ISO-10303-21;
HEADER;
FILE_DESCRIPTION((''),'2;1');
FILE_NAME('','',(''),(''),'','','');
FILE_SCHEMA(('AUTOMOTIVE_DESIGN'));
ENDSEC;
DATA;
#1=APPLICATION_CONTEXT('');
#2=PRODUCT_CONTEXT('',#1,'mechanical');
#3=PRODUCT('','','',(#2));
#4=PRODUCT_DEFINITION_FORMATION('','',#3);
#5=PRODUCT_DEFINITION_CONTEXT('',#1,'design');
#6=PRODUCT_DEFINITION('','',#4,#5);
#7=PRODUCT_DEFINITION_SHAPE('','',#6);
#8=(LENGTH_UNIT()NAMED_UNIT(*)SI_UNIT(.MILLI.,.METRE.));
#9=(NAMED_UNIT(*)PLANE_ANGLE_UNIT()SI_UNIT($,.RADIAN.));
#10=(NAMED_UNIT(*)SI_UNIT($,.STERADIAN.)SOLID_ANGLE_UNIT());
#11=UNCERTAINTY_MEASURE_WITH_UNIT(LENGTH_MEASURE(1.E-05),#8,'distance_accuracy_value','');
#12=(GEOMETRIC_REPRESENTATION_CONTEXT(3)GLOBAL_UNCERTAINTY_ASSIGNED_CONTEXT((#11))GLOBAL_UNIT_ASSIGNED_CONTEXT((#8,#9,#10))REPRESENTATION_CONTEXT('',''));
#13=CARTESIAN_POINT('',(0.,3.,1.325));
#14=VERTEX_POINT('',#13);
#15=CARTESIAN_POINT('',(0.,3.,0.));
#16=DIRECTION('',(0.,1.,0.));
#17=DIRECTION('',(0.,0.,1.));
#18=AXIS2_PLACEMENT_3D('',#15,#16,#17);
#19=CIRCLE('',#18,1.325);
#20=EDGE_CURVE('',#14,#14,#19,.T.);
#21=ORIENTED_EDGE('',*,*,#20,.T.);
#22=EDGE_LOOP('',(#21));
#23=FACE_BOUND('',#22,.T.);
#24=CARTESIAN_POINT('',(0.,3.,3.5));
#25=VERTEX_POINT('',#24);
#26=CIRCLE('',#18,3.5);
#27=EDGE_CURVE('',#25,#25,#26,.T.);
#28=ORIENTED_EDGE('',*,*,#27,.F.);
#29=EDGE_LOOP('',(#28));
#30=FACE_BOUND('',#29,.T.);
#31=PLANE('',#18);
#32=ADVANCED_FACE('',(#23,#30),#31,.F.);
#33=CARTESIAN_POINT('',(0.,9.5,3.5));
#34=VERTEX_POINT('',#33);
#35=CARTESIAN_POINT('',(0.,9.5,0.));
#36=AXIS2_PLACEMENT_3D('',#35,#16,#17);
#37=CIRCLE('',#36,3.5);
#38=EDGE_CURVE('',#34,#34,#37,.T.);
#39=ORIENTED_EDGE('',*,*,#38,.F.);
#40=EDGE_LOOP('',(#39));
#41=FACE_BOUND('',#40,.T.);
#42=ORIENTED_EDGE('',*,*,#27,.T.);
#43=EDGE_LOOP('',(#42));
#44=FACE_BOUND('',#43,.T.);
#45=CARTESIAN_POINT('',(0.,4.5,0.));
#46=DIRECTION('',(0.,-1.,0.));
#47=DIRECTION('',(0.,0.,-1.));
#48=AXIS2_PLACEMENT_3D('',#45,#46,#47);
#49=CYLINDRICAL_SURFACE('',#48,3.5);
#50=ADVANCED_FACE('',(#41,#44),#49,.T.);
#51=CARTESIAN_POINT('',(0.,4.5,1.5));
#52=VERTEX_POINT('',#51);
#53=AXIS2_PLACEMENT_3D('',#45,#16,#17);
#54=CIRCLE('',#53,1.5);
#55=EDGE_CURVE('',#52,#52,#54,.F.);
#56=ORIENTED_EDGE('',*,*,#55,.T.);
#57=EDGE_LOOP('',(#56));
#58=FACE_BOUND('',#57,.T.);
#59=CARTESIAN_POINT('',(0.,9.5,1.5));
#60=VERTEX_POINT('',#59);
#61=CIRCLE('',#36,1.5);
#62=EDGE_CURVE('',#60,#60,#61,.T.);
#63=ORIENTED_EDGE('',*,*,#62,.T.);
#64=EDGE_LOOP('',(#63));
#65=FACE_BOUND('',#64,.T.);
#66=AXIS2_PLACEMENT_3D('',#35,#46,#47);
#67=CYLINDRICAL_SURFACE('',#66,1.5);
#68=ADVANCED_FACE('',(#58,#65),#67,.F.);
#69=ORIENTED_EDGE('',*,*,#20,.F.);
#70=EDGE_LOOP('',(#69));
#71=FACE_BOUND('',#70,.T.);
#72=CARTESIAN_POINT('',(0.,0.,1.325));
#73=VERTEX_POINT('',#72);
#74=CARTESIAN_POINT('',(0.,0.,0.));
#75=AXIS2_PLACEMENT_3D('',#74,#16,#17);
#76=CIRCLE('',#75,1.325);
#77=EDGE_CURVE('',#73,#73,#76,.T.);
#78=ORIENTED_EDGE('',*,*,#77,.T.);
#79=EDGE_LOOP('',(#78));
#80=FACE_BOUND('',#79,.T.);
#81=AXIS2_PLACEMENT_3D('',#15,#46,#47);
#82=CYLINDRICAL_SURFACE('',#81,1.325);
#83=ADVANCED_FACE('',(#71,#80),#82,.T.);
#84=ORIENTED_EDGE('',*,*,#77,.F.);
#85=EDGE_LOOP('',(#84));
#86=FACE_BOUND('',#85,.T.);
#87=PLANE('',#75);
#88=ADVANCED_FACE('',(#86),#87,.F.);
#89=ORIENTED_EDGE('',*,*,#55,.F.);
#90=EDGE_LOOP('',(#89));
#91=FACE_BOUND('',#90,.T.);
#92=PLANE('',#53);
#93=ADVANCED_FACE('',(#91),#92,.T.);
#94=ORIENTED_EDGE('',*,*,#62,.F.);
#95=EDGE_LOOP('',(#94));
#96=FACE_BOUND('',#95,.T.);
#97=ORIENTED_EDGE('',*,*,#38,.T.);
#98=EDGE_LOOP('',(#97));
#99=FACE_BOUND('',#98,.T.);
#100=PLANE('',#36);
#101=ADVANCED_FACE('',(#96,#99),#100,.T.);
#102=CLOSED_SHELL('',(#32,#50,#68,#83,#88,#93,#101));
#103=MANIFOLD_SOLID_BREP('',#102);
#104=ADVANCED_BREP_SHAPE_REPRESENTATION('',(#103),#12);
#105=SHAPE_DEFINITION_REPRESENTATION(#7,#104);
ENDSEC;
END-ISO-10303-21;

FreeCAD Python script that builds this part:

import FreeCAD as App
import Part
import Sketcher
Q = App.Units.Quantity

doc = App.newDocument("Part")
body = doc.addObject("PartDesign::Body", "Body")

# Sketch on XZ plane
sketch1 = body.newObject("Sketcher::SketchObject", "Sketch")
sketch1.AttachmentSupport = (doc.getObject("XZ_Plane"), [""])
sketch1.MapMode = "FlatFace"
sketch1.addGeometry(Part.Circle(App.Vector(0, 0, 0), App.Vector(0, 0, 1), 1.325), False)
sketch1.addConstraint(Sketcher.Constraint("Coincident", 0, 3, -1, 1))
sketch1.addConstraint(Sketcher.Constraint("Diameter", 0, Q("2.65 mm")))
pad1 = body.newObject("PartDesign::Pad", "Pad")
pad1.Profile = sketch1
pad1.Length = 3
pad1.Reversed = True

# Sketch on XZ plane
sketch2 = body.newObject("Sketcher::SketchObject", "Sketch001")
sketch2.AttachmentSupport = (doc.getObject("XZ_Plane"), [""])
sketch2.MapMode = "FlatFace"
sketch2.AttachmentOffset = App.Placement(App.Vector(0, 0, -3), App.Rotation())
sketch2.addGeometry(Part.Circle(App.Vector(0, 0, 0), App.Vector(0, 0, 1), 3.5), False)
sketch2.addConstraint(Sketcher.Constraint("Coincident", 0, 3, -1, 1))
sketch2.addConstraint(Sketcher.Constraint("Diameter", 0, Q("7 mm")))
pad2 = body.newObject("PartDesign::Pad", "Pad001")
pad2.Profile = sketch2
pad2.Length = 1.5
pad2.Reversed = True

# Sketch on XZ plane
sketch3 = body.newObject("Sketcher::SketchObject", "Sketch002")
sketch3.AttachmentSupport = (doc.getObject("XZ_Plane"), [""])
sketch3.MapMode = "FlatFace"
sketch3.AttachmentOffset = App.Placement(App.Vector(0, 0, -4.5), App.Rotation())
sketch3.addGeometry(Part.Circle(App.Vector(0, 0, 0), App.Vector(0, 0, 1), 3.5), False)
sketch3.addGeometry(Part.Circle(App.Vector(0, 0, 0), App.Vector(0, 0, 1), 1.5), False)
sketch3.addConstraint(Sketcher.Constraint("Coincident", 0, 3, -1, 1))
sketch3.addConstraint(Sketcher.Constraint("Coincident", 1, 3, -1, 1))
sketch3.addConstraint(Sketcher.Constraint("Diameter", 0, Q("7 mm")))
sketch3.addConstraint(Sketcher.Constraint("Diameter", 1, Q("3 mm")))
pad3 = body.newObject("PartDesign::Pad", "Pad002")
pad3.Profile = sketch3
pad3.Length = 5
pad3.Reversed = True

doc.recompute()
